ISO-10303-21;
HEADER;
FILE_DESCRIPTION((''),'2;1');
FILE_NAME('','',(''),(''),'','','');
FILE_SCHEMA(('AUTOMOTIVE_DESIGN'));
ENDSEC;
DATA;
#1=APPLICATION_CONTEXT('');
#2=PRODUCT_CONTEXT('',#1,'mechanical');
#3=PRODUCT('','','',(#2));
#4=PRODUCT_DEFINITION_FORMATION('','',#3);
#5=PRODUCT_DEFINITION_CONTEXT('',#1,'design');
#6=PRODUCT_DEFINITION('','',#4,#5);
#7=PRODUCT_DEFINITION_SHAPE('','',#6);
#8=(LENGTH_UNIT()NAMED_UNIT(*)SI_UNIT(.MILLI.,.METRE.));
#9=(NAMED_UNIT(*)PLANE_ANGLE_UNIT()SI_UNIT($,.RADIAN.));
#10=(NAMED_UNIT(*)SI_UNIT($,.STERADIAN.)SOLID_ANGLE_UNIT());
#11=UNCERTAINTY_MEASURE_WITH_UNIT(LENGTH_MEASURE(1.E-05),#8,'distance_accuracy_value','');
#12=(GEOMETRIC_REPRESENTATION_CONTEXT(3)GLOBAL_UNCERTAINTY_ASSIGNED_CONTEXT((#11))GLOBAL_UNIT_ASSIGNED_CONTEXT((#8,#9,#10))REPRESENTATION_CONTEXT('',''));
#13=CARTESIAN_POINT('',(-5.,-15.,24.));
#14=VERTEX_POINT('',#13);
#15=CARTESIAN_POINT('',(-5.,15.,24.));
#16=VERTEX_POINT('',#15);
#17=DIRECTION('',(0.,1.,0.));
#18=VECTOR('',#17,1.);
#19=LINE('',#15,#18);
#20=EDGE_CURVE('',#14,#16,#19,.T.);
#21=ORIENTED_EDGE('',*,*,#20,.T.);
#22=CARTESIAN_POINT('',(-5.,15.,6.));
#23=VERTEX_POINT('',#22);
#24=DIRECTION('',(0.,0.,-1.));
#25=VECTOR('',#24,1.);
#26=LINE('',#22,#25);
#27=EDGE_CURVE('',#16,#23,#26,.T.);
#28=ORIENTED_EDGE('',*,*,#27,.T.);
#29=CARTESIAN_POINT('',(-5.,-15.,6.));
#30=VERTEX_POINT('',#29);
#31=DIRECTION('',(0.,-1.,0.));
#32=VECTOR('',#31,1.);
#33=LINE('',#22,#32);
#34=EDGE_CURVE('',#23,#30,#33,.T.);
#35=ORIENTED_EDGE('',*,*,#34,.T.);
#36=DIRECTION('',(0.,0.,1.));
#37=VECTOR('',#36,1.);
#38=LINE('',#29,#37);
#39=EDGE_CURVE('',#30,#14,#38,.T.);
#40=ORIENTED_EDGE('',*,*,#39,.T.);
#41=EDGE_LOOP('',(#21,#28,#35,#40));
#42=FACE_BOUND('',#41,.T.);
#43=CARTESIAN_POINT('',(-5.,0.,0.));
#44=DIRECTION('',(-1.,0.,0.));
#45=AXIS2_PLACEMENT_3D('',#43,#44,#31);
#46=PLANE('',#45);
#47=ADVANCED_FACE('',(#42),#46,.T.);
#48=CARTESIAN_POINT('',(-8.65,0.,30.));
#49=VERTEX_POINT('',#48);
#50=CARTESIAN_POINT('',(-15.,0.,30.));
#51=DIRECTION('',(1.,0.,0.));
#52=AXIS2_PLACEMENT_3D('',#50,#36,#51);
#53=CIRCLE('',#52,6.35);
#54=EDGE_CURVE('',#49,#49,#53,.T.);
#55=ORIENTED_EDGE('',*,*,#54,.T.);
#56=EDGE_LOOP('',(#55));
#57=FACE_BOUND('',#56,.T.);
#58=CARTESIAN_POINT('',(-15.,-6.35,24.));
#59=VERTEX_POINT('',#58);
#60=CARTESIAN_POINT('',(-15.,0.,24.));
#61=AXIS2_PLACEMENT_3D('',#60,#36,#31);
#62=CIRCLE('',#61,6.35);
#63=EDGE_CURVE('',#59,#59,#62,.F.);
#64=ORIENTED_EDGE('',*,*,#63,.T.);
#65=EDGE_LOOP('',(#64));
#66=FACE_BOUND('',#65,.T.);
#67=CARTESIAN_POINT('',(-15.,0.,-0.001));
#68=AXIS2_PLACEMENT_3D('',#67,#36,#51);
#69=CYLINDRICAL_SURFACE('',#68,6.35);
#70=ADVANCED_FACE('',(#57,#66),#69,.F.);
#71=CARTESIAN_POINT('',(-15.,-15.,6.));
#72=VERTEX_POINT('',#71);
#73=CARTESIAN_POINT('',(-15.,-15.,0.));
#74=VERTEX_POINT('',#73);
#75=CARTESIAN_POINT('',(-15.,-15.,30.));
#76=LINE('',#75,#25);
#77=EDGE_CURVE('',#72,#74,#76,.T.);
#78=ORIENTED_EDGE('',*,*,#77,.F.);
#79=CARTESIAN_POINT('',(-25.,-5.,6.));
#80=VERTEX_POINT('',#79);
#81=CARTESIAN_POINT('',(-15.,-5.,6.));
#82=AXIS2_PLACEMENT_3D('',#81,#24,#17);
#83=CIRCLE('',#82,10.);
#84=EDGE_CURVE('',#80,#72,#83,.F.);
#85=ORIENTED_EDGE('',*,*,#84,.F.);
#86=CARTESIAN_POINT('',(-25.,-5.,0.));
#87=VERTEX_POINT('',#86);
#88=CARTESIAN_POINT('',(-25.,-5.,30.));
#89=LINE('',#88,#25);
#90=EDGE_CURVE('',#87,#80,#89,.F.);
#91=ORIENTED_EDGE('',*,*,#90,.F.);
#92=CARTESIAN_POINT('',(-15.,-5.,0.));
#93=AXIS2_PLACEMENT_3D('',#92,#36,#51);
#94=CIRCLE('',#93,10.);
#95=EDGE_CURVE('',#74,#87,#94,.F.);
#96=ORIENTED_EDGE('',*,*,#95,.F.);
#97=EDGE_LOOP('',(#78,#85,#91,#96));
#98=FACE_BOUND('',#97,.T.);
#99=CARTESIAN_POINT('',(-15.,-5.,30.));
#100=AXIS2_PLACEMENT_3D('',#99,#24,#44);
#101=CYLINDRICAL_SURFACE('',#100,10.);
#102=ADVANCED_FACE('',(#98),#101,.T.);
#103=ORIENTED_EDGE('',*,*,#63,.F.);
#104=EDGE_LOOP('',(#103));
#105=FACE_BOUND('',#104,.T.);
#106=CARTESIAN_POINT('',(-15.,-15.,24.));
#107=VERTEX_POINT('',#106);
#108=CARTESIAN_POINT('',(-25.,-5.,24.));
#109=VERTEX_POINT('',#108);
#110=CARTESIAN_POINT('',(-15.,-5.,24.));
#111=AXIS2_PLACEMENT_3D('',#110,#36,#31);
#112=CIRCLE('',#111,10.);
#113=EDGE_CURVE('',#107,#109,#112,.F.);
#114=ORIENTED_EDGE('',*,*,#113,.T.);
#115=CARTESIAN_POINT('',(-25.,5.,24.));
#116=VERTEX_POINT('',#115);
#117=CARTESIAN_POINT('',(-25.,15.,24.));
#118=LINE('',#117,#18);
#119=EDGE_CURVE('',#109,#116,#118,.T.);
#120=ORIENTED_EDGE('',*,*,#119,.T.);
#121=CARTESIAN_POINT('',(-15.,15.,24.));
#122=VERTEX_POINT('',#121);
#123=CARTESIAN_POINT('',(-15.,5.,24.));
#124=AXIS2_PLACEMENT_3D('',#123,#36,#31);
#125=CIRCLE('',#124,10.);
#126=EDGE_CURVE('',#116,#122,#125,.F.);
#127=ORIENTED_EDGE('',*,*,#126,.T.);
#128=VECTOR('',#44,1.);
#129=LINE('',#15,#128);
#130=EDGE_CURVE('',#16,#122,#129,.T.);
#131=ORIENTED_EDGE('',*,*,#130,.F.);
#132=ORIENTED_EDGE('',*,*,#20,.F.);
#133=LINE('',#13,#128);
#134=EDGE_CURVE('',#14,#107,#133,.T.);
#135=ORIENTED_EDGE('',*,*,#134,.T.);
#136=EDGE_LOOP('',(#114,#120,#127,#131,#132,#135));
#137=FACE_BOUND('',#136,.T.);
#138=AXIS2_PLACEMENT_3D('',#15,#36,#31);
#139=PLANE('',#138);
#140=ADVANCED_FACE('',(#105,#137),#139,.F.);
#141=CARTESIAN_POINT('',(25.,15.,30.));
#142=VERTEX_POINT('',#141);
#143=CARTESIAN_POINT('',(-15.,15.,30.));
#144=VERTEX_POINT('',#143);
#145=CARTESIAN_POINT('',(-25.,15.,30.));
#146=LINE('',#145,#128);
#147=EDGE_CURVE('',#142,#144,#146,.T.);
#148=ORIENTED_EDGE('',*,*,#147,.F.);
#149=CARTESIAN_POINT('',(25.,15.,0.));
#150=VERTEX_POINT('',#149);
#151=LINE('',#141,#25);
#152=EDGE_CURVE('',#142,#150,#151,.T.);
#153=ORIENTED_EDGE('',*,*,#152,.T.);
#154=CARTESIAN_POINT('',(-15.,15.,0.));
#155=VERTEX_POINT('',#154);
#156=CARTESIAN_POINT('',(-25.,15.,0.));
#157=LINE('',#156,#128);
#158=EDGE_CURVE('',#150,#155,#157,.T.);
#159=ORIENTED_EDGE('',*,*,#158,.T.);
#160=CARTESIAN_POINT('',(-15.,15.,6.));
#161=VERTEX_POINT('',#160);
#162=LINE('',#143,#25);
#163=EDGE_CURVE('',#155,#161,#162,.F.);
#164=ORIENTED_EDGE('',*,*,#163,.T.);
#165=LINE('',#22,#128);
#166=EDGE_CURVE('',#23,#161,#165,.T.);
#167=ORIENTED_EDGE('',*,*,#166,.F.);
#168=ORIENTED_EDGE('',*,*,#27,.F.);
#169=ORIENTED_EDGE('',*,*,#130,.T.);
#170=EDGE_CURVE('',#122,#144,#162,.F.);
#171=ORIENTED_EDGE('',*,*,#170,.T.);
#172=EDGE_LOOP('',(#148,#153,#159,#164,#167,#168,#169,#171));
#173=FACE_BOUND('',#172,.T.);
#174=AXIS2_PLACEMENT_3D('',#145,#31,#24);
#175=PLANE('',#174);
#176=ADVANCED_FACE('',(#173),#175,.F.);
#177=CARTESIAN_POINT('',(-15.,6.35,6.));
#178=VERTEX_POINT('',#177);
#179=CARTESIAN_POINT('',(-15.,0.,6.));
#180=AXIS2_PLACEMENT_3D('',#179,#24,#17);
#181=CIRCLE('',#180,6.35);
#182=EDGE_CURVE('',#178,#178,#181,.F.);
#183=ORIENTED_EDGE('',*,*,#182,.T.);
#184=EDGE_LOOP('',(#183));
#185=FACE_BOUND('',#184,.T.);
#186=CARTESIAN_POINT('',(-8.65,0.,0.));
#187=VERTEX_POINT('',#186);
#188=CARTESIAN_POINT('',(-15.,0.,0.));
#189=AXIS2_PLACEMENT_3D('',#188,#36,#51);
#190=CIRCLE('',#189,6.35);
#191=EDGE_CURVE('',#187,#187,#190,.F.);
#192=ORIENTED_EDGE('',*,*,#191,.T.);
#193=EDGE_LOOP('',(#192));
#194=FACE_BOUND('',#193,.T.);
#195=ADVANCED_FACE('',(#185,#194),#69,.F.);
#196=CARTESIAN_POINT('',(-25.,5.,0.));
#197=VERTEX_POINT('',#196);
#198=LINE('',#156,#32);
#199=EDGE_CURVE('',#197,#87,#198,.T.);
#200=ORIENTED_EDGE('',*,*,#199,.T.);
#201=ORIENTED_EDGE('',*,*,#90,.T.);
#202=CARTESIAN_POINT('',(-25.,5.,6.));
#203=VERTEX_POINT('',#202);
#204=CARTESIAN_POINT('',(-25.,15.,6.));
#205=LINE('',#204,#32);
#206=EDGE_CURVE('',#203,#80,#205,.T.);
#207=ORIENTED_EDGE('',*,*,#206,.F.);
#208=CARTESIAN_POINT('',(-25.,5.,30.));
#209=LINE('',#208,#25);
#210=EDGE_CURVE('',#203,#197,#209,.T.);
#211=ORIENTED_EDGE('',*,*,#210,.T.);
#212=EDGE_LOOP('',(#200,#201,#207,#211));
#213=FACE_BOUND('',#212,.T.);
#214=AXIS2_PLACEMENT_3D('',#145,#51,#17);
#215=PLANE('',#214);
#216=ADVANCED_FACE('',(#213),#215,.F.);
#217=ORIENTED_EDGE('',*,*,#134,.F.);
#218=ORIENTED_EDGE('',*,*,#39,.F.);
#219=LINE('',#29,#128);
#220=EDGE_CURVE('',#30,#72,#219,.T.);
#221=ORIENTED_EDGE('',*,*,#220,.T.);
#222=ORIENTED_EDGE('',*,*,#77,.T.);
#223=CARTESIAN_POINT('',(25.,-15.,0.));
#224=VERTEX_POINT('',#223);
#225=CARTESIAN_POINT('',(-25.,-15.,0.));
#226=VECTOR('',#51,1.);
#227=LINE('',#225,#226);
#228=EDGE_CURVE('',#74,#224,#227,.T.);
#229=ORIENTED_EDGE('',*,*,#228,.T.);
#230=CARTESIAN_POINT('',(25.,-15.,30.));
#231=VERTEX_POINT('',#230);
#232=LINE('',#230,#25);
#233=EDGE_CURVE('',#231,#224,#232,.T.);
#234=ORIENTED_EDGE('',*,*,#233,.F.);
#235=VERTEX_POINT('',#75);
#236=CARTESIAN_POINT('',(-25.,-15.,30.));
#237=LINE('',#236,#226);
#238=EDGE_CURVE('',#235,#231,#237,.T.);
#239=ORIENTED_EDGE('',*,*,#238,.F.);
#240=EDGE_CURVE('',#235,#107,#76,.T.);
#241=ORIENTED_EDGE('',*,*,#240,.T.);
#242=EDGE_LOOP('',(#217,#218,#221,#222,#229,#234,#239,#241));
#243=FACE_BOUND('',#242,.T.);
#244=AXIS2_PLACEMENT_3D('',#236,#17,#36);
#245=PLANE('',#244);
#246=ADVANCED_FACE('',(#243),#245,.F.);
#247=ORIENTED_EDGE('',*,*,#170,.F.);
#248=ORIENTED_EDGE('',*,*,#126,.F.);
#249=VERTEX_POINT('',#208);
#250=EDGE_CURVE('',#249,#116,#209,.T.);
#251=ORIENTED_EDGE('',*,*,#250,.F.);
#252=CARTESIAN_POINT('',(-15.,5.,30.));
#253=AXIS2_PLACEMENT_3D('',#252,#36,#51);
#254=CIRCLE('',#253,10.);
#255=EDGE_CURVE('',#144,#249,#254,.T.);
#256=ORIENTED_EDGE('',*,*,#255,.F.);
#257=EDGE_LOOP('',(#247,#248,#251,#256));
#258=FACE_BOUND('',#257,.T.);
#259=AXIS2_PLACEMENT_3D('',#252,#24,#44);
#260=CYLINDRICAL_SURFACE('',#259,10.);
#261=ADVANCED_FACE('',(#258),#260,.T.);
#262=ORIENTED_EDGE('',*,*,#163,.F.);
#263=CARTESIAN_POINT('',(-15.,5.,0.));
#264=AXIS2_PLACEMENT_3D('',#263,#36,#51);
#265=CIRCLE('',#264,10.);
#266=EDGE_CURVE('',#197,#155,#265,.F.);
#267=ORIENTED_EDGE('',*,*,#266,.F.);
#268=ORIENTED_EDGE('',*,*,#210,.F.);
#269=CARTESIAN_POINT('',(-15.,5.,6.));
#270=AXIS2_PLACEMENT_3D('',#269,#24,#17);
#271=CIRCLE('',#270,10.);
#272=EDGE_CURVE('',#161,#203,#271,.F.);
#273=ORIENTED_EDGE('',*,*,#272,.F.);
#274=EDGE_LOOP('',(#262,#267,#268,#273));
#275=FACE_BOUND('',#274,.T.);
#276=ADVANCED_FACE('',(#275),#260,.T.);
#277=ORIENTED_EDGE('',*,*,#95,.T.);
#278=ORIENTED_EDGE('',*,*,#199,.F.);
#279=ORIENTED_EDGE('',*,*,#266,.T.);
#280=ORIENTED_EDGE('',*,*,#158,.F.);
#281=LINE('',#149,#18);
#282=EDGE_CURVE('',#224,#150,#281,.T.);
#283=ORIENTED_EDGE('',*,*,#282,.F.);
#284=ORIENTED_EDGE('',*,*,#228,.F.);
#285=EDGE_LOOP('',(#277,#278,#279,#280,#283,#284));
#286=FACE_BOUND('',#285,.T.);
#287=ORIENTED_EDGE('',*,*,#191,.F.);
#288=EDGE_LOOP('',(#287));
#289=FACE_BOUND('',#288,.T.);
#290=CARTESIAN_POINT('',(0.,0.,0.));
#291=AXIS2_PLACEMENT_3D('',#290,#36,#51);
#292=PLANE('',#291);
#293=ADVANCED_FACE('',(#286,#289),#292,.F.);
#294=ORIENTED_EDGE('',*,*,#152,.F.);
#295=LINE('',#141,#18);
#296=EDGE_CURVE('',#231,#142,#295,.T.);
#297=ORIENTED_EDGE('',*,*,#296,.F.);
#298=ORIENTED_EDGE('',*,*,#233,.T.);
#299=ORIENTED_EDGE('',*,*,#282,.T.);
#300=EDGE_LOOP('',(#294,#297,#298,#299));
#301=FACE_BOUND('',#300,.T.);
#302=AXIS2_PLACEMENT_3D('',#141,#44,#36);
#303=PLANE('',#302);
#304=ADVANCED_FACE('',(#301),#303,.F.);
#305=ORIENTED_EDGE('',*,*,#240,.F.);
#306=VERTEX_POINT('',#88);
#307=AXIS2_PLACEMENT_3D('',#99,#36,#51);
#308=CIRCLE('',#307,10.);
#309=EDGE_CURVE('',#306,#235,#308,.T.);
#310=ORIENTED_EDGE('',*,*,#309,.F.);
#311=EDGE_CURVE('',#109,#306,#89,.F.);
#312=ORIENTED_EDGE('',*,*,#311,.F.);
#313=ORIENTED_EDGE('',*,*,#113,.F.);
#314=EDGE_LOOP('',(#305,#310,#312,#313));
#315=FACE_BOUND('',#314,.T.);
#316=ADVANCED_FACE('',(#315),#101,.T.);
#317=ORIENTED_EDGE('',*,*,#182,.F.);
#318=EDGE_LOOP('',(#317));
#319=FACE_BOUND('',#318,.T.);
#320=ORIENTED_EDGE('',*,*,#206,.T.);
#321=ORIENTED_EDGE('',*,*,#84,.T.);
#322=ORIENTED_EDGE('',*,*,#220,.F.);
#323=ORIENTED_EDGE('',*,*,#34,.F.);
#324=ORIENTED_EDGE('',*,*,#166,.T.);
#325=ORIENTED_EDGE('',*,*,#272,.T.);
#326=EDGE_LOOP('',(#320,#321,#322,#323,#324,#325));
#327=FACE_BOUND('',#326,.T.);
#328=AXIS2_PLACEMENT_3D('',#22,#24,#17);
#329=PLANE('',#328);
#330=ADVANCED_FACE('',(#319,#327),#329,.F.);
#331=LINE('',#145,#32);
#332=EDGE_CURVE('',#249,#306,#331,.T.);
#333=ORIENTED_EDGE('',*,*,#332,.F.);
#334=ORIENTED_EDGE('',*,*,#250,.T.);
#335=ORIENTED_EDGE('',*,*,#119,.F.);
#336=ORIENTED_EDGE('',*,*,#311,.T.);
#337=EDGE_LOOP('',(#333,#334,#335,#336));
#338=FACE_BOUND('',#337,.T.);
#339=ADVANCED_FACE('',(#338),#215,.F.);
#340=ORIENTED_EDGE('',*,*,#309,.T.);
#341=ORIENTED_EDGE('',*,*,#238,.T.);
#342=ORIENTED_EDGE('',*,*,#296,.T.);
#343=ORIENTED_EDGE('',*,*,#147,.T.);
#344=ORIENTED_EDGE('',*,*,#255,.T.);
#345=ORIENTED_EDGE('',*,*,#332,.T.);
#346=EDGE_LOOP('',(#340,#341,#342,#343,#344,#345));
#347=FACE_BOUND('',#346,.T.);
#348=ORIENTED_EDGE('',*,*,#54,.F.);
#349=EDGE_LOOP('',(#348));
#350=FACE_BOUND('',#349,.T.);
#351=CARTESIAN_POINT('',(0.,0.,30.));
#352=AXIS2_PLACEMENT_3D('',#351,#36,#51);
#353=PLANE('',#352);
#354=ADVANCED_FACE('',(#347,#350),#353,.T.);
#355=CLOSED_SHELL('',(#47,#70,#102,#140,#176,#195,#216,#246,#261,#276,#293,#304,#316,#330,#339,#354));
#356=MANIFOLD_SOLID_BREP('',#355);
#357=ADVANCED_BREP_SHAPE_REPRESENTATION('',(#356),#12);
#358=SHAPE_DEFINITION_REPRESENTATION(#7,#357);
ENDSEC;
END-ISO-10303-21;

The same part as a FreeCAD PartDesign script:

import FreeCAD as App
import Part
import Sketcher

V = App.Vector


def edges_at(feature, points):
    """Names of the edges that pass closest to the given points."""
    edges = feature.Shape.Edges
    near = lambda p: min(range(len(edges)), key=lambda i: edges[i].distToShape(Part.Vertex(*p))[0])
    return sorted({f"Edge{near(p) + 1}" for p in points})


def add_polygon(sketch, points):
    """Adds a closed chain of lines whose ends are joined by coincident constraints."""
    first, n = sketch.GeometryCount, len(points)
    for a, b in zip(points, points[1:] + points[:1]):
        sketch.addGeometry(Part.LineSegment(App.Vector(*a, 0), App.Vector(*b, 0)), False)
    for i in range(n):
        sketch.addConstraint(Sketcher.Constraint("Coincident", first + i, 2, first + (i + 1) % n, 1))

doc = App.newDocument("Part")
params = doc.addObject("Spreadsheet::Sheet", "Params")
for row, (alias, value) in enumerate([
    ("sketch1_width", "50 mm"),
    ("sketch1_height", "30 mm"),
    ("pad1_length", "30 mm"),
    ("sketch2_diameter", "12.7 mm"),
    ("fillet_radius", "10 mm"),
    ("sketch3_width", "30 mm"),
    ("sketch3_height", "18 mm"),
    ("pocket2_length", "20 mm"),
], start=1):
    params.set(f"A{row}", alias)
    params.set(f"B{row}", "=" + value)
    params.setAlias(f"B{row}", alias)

body = doc.addObject("PartDesign::Body", "Body")

# Sketch on XY plane
sketch1 = body.newObject("Sketcher::SketchObject", "Sketch")
sketch1.AttachmentSupport = (doc.getObject("XY_Plane"), [""])
sketch1.MapMode = "FlatFace"
add_polygon(sketch1, [(-25, 15), (-25, -15), (25, -15), (25, 15)])  # lines 0-3
sketch1.addConstraint(Sketcher.Constraint("Vertical", 0))
sketch1.addConstraint(Sketcher.Constraint("Horizontal", 1))
sketch1.addConstraint(Sketcher.Constraint("Vertical", 2))
sketch1.addConstraint(Sketcher.Constraint("Horizontal", 3))
sketch1.addConstraint(Sketcher.Constraint("Symmetric", 0, 2, 2, 2, -1, 1))
sketch1.addConstraint(Sketcher.Constraint("DistanceX", 1, 1, 1, 2, 50.0))
sketch1.addConstraint(Sketcher.Constraint("DistanceY", 0, 2, 0, 1, 30.0))
sketch1.setExpression("Constraints[9]", "Params.sketch1_width")
sketch1.setExpression("Constraints[10]", "Params.sketch1_height")
pad1 = body.newObject("PartDesign::Pad", "Pad")
pad1.Profile = sketch1
pad1.setExpression("Length", "Params.pad1_length")

# Sketch on XY plane
sketch2 = body.newObject("Sketcher::SketchObject", "Sketch001")
sketch2.AttachmentSupport = (doc.getObject("XY_Plane"), [""])
sketch2.MapMode = "FlatFace"
sketch2.AttachmentOffset = App.Placement(V(0, 0, 30), App.Rotation())
sketch2.addGeometry(Part.Circle(V(-15, 0, 0), V(0, 0, 1), 6), False)
sketch2.addConstraint(Sketcher.Constraint("PointOnObject", 0, 3, -1))
sketch2.addConstraint(Sketcher.Constraint("Diameter", 0, 12.7))
sketch2.addConstraint(Sketcher.Constraint("DistanceX", 0, 3, -1, 1, 15.0))
sketch2.setExpression("Constraints[1]", "Params.sketch2_diameter")
pocket1 = body.newObject("PartDesign::Pocket", "Pocket")
pocket1.Profile = sketch2
pocket1.Type = "UpToFirst"
doc.recompute()

fillet = body.newObject("PartDesign::Fillet", "Fillet")
fillet.Base = (pocket1, edges_at(pocket1, [(-25, -15, 15), (-25, 15, 15)]))
fillet.setExpression("Radius", "Params.fillet_radius")

# Sketch on YZ plane
sketch3 = body.newObject("Sketcher::SketchObject", "Sketch002")
sketch3.AttachmentSupport = (doc.getObject("YZ_Plane"), [""])
sketch3.MapMode = "FlatFace"
sketch3.AttachmentOffset = App.Placement(V(0, 0, -25), App.Rotation())
add_polygon(sketch3, [(15, 6), (-15, 6), (-15, 24), (15, 24)])  # lines 0-3
sketch3.addConstraint(Sketcher.Constraint("Horizontal", 0))
sketch3.addConstraint(Sketcher.Constraint("Vertical", 1))
sketch3.addConstraint(Sketcher.Constraint("Horizontal", 2))
sketch3.addConstraint(Sketcher.Constraint("Vertical", 3))
sketch3.addConstraint(Sketcher.Constraint("DistanceX", 0, 2, 0, 1, 30.0))
sketch3.addConstraint(Sketcher.Constraint("DistanceY", 1, 1, 1, 2, 18.0))
sketch3.addConstraint(Sketcher.Constraint("DistanceX", 0, 2, -1, 1, 15.0))
sketch3.addConstraint(Sketcher.Constraint("DistanceY", -1, 1, 0, 2, 6.0))
sketch3.setExpression("Constraints[8]", "Params.sketch3_width")
sketch3.setExpression("Constraints[9]", "Params.sketch3_height")
pocket2 = body.newObject("PartDesign::Pocket", "Pocket001")
pocket2.Profile = sketch3
pocket2.setExpression("Length", "Params.pocket2_length")
pocket2.Reversed = True

doc.recompute()
